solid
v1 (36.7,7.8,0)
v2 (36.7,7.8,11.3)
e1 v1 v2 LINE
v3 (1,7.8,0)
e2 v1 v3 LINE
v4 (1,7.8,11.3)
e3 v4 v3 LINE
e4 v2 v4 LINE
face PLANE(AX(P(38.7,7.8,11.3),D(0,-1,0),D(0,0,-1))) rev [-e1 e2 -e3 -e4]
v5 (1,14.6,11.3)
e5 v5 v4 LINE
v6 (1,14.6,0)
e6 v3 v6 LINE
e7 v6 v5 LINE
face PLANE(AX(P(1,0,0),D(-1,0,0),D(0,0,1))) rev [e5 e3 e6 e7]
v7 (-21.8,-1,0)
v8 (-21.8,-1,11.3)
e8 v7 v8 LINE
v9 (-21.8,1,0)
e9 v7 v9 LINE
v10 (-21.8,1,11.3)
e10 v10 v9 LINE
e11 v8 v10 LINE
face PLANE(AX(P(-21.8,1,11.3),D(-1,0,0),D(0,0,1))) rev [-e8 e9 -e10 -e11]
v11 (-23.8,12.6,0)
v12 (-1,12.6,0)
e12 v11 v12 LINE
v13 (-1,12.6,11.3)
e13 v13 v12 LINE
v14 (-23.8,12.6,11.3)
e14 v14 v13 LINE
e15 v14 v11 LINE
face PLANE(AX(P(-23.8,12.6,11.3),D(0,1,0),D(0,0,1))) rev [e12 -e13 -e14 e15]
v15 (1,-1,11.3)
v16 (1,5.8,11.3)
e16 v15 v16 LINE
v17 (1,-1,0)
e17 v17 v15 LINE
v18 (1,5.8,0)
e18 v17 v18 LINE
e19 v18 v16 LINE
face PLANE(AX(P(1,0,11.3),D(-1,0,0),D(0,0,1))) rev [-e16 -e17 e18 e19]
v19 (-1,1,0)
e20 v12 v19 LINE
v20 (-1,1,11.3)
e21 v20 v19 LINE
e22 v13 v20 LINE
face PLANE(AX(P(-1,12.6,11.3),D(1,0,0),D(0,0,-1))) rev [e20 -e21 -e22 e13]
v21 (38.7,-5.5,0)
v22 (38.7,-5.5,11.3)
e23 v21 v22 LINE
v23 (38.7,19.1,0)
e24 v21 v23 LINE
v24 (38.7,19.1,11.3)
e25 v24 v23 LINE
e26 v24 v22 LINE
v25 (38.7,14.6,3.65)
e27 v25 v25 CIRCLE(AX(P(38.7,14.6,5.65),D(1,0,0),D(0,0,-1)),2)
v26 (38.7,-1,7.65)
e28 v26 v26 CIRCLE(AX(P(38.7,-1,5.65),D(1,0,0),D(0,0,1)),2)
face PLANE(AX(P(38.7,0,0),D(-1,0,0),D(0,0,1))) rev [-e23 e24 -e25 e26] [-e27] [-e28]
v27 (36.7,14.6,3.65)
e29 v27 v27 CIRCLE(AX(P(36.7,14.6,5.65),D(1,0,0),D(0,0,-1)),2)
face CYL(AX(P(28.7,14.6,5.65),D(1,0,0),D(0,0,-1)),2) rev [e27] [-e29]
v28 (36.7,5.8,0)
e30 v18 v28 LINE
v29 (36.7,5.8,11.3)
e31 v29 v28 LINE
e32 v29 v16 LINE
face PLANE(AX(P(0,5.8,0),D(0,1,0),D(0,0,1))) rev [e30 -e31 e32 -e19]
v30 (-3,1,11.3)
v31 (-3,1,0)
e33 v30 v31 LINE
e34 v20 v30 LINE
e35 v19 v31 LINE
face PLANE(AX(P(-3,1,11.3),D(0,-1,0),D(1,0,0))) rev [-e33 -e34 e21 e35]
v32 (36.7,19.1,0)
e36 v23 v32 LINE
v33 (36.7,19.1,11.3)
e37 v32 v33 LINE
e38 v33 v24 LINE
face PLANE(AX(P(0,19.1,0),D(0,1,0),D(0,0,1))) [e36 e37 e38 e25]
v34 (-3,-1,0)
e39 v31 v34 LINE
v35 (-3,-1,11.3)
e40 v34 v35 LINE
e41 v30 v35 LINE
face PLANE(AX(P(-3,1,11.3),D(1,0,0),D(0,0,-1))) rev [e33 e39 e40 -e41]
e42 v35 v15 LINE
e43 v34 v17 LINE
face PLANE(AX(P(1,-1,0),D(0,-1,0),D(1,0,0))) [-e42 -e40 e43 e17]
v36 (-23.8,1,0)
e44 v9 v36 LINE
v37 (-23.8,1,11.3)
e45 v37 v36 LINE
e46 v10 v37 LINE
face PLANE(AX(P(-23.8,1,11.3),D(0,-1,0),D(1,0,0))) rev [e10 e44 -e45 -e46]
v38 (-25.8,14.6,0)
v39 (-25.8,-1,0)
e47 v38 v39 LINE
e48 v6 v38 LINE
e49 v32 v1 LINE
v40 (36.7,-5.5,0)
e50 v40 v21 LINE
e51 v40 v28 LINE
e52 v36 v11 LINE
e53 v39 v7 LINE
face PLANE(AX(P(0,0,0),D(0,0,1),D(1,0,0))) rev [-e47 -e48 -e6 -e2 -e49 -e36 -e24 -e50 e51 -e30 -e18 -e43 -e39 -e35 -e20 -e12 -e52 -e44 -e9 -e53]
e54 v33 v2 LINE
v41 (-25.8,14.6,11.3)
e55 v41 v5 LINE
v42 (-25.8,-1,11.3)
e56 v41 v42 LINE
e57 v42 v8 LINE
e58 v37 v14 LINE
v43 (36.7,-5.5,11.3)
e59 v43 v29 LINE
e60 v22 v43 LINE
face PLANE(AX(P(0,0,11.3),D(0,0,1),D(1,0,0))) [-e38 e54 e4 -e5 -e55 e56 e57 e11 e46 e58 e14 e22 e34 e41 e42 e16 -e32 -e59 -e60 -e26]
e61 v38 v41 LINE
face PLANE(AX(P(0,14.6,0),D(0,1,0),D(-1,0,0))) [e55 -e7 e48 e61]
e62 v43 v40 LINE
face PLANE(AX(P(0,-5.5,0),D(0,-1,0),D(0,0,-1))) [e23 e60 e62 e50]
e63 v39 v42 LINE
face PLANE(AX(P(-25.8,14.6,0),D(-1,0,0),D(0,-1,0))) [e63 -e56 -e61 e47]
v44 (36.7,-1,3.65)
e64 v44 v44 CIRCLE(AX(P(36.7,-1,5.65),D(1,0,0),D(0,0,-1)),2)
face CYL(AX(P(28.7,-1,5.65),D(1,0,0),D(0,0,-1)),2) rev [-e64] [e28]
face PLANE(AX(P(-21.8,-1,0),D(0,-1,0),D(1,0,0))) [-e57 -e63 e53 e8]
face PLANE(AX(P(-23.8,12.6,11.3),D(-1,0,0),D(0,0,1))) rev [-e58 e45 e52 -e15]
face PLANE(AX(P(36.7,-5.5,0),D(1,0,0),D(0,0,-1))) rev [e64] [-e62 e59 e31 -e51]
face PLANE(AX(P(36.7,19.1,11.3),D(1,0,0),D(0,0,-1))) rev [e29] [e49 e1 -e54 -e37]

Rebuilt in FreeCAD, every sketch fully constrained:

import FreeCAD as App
import Part
import Sketcher

V = App.Vector

doc = App.newDocument("Part")
body = doc.addObject("PartDesign::Body", "Body")

sketch1 = body.newObject("Sketcher::SketchObject", "Sketch")
sketch1.AttachmentSupport = (doc.getObject("XY_Plane"), [""])
sketch1.MapMode = "FlatFace"
sketch1.addGeometry([
    Part.LineSegment(V(-21.8, 0, 0), V(-21.8, 1, 0)),
    Part.LineSegment(V(-21.8, 1, 0), V(-23.8, 1, 0)),
    Part.LineSegment(V(-23.8, 1, 0), V(-23.8, 12.6, 0)),
    Part.LineSegment(V(-23.8, 12.6, 0), V(-1, 12.6, 0)),
    Part.LineSegment(V(-1, 12.6, 0), V(-1, 1, 0)),
    Part.LineSegment(V(-1, 1, 0), V(-3, 1, 0)),
    Part.LineSegment(V(-3, 1, 0), V(-3, 0, 0)),
    Part.LineSegment(V(-3, 0, 0), V(0, 0, 0)),
    Part.LineSegment(V(0, 0, 0), V(0, 13.6, 0)),
    Part.LineSegment(V(0, 13.6, 0), V(-24.8, 13.6, 0)),
    Part.LineSegment(V(-24.8, 13.6, 0), V(-24.8, 0, 0)),
    Part.LineSegment(V(-24.8, 0, 0), V(-21.8, 0, 0)),
], False)
sketch1.addConstraint([
    Sketcher.Constraint("Coincident", 0, 2, 1, 1),
    Sketcher.Constraint("Coincident", 1, 2, 2, 1),
    Sketcher.Constraint("Coincident", 2, 2, 3, 1),
    Sketcher.Constraint("Coincident", 3, 2, 4, 1),
    Sketcher.Constraint("Coincident", 4, 2, 5, 1),
    Sketcher.Constraint("Coincident", 5, 2, 6, 1),
    Sketcher.Constraint("Coincident", 6, 2, 7, 1),
    Sketcher.Constraint("Coincident", 7, 2, 8, 1),
    Sketcher.Constraint("Coincident", 8, 2, 9, 1),
    Sketcher.Constraint("Coincident", 9, 2, 10, 1),
    Sketcher.Constraint("Coincident", 10, 2, 11, 1),
    Sketcher.Constraint("Coincident", 11, 2, 0, 1),
    Sketcher.Constraint("Vertical", 0),
    Sketcher.Constraint("Horizontal", 1),
    Sketcher.Constraint("Vertical", 2),
    Sketcher.Constraint("Horizontal", 3),
    Sketcher.Constraint("Vertical", 4),
    Sketcher.Constraint("Horizontal", 5),
    Sketcher.Constraint("Vertical", 6),
    Sketcher.Constraint("Horizontal", 7),
    Sketcher.Constraint("Vertical", 8),
    Sketcher.Constraint("Horizontal", 9),
    Sketcher.Constraint("Vertical", 10),
    Sketcher.Constraint("Horizontal", 11),
    Sketcher.Constraint("Coincident", 7, 2, -1, 1),
    Sketcher.Constraint("PointOnObject", 10, 2, -1),
    Sketcher.Constraint("Horizontal", 1, 2, 4, 2),
    Sketcher.Constraint("Equal", 1, 5),
    Sketcher.Constraint("Equal", 7, 11),
    Sketcher.Constraint("DistanceX", 1, 2, 1, 1, 2.0),
    Sketcher.Constraint("DistanceX", 7, 1, 7, 2, 3.0),
    Sketcher.Constraint("DistanceY", 0, 1, 0, 2, 1.0),
    Sketcher.Constraint("DistanceX", 3, 1, 3, 2, 22.8),
    Sketcher.Constraint("DistanceY", 2, 1, 2, 2, 11.6),
    Sketcher.Constraint("DistanceY", 8, 1, 8, 2, 13.6),
])
pad1 = body.newObject("PartDesign::Pad", "Pad")
pad1.Profile = sketch1
pad1.Length = 11.3

sketch2 = body.newObject("Sketcher::SketchObject", "Sketch001")
sketch2.AttachmentSupport = (doc.getObject("XZ_Plane"), [""])
sketch2.MapMode = "FlatFace"
sketch2.AttachmentOffset = App.Placement(V(0, 0, -13.6), App.Rotation())
sketch2.addGeometry([
    Part.LineSegment(V(-17, 0, 0), V(-17, 11, 0)),
    Part.LineSegment(V(-17, 11, 0), V(-8, 11, 0)),
    Part.LineSegment(V(-8, 11, 0), V(-8, 0, 0)),
    Part.LineSegment(V(-8, 0, 0), V(-17, 0, 0)),
], False)
sketch2.addConstraint([
    Sketcher.Constraint("Coincident", 0, 2, 1, 1),
    Sketcher.Constraint("Coincident", 1, 2, 2, 1),
    Sketcher.Constraint("Coincident", 2, 2, 3, 1),
    Sketcher.Constraint("Coincident", 3, 2, 0, 1),
    Sketcher.Constraint("Vertical", 0),
    Sketcher.Constraint("Horizontal", 1),
    Sketcher.Constraint("Vertical", 2),
    Sketcher.Constraint("Horizontal", 3),
    Sketcher.Constraint("PointOnObject", 2, 2, -1),
    Sketcher.Constraint("DistanceX", 1, 1, 1, 2, 8.8),
    Sketcher.Constraint("DistanceY", 0, 1, 0, 2, 11.3),
    Sketcher.Constraint("DistanceX", 1, 2, -1, 1, 8.0),
])
pad2 = body.newObject("PartDesign::Pad", "Pad001")
pad2.Profile = sketch2
pad2.Length = 1
pad2.Reversed = True

sketch3 = body.newObject("Sketcher::SketchObject", "Sketch002")
sketch3.AttachmentSupport = (doc.getObject("YZ_Plane"), [""])
sketch3.MapMode = "FlatFace"
sketch3.AttachmentOffset = App.Placement(V(0, 0, -8), App.Rotation())
sketch3.addGeometry([
    Part.LineSegment(V(14.6, 11.3, 0), V(13.6, 11.3, 0)),
    Part.LineSegment(V(13.6, 11.3, 0), V(13.6, 0, 0)),
    Part.LineSegment(V(13.6, 0, 0), V(14.6, 0, 0)),
    Part.LineSegment(V(14.6, 0, 0), V(14.6, 11.3, 0)),
], False)
sketch3.addConstraint([
    Sketcher.Constraint("Coincident", 0, 2, 1, 1),
    Sketcher.Constraint("Coincident", 1, 2, 2, 1),
    Sketcher.Constraint("Coincident", 2, 2, 3, 1),
    Sketcher.Constraint("Coincident", 3, 2, 0, 1),
    Sketcher.Constraint("Horizontal", 0),
    Sketcher.Constraint("Vertical", 1),
    Sketcher.Constraint("Horizontal", 2),
    Sketcher.Constraint("Vertical", 3),
    Sketcher.Constraint("PointOnObject", 1, 2, -1),
    Sketcher.Constraint("DistanceX", 0, 2, 0, 1, 1.0),
    Sketcher.Constraint("DistanceY", 1, 2, 1, 1, 11.3),
    Sketcher.Constraint("DistanceX", -1, 1, 0, 2, 13.6),
])
pad3 = body.newObject("PartDesign::Pad", "Pad002")
pad3.Profile = sketch3
pad3.Length = 10

sketch4 = body.newObject("Sketcher::SketchObject", "Sketch003")
sketch4.AttachmentSupport = (doc.getObject("XZ_Plane"), [""])
sketch4.MapMode = "FlatFace"
sketch4.AttachmentOffset = App.Placement(V(0, 0, -13.6), App.Rotation())
sketch4.addGeometry([
    Part.LineSegment(V(0, 11.3, 0), V(0, 0, 0)),
    Part.LineSegment(V(0, 0, 0), V(2, 0, 0)),
    Part.LineSegment(V(2, 0, 0), V(2, 11.3, 0)),
    Part.LineSegment(V(2, 11.3, 0), V(0, 11.3, 0)),
], False)
sketch4.addConstraint([
    Sketcher.Constraint("Coincident", 0, 2, 1, 1),
    Sketcher.Constraint("Coincident", 1, 2, 2, 1),
    Sketcher.Constraint("Coincident", 2, 2, 3, 1),
    Sketcher.Constraint("Coincident", 3, 2, 0, 1),
    Sketcher.Constraint("Vertical", 0),
    Sketcher.Constraint("Horizontal", 1),
    Sketcher.Constraint("Vertical", 2),
    Sketcher.Constraint("Horizontal", 3),
    Sketcher.Constraint("Coincident", 0, 2, -1, 1),
    Sketcher.Constraint("DistanceX", 1, 1, 1, 2, 2.0),
    Sketcher.Constraint("DistanceY", 0, 2, 0, 1, 11.3),
])
pad4 = body.newObject("PartDesign::Pad", "Pad003")
pad4.Profile = sketch4
pad4.Length = 7.8

sketch5 = body.newObject("Sketcher::SketchObject", "Sketch004")
sketch5.AttachmentSupport = (doc.getObject("YZ_Plane"), [""])
sketch5.MapMode = "FlatFace"
sketch5.AttachmentOffset = App.Placement(V(0, 0, 2), App.Rotation())
sketch5.addGeometry([
    Part.LineSegment(V(7.8, 11.3, 0), V(5.8, 11.3, 0)),
    Part.LineSegment(V(5.8, 11.3, 0), V(5.8, 0, 0)),
    Part.LineSegment(V(5.8, 0, 0), V(7.8, 0, 0)),
    Part.LineSegment(V(7.8, 0, 0), V(7.8, 11.3, 0)),
], False)
sketch5.addConstraint([
    Sketcher.Constraint("Coincident", 0, 2, 1, 1),
    Sketcher.Constraint("Coincident", 1, 2, 2, 1),
    Sketcher.Constraint("Coincident", 2, 2, 3, 1),
    Sketcher.Constraint("Coincident", 3, 2, 0, 1),
    Sketcher.Constraint("Horizontal", 0),
    Sketcher.Constraint("Vertical", 1),
    Sketcher.Constraint("Horizontal", 2),
    Sketcher.Constraint("Vertical", 3),
    Sketcher.Constraint("PointOnObject", 1, 2, -1),
    Sketcher.Constraint("DistanceX", 0, 2, 0, 1, 2.0),
    Sketcher.Constraint("DistanceY", 1, 2, 1, 1, 11.3),
    Sketcher.Constraint("DistanceX", -1, 1, 0, 2, 5.8),
])
pad5 = body.newObject("PartDesign::Pad", "Pad004")
pad5.Profile = sketch5
pad5.Length = 36.7

sketch6 = body.newObject("Sketcher::SketchObject", "Sketch005")
sketch6.AttachmentSupport = (doc.getObject("XZ_Plane"), [""])
sketch6.MapMode = "FlatFace"
sketch6.AttachmentOffset = App.Placement(V(0, 0, -5.8), App.Rotation())
sketch6.addGeometry([
    Part.LineSegment(V(36.7, 11.3, 0), V(36.7, 0, 0)),
    Part.LineSegment(V(36.7, 0, 0), V(38.7, 0, 0)),
    Part.LineSegment(V(38.7, 0, 0), V(38.7, 11.3, 0)),
    Part.LineSegment(V(38.7, 11.3, 0), V(36.7, 11.3, 0)),
], False)
sketch6.addConstraint([
    Sketcher.Constraint("Coincident", 0, 2, 1, 1),
    Sketcher.Constraint("Coincident", 1, 2, 2, 1),
    Sketcher.Constraint("Coincident", 2, 2, 3, 1),
    Sketcher.Constraint("Coincident", 3, 2, 0, 1),
    Sketcher.Constraint("Vertical", 0),
    Sketcher.Constraint("Horizontal", 1),
    Sketcher.Constraint("Vertical", 2),
    Sketcher.Constraint("Horizontal", 3),
    Sketcher.Constraint("PointOnObject", 0, 2, -1),
    Sketcher.Constraint("DistanceX", 1, 1, 1, 2, 2.0),
    Sketcher.Constraint("DistanceY", 0, 2, 0, 1, 11.3),
    Sketcher.Constraint("DistanceX", -1, 1, 0, 2, 36.7),
])
pad6 = body.newObject("PartDesign::Pad", "Pad005")
pad6.Profile = sketch6
pad6.Length = 11.3

sketch7 = body.newObject("Sketcher::SketchObject", "Sketch006")
sketch7.AttachmentSupport = (doc.getObject("XZ_Plane"), [""])
sketch7.MapMode = "FlatFace"
sketch7.AttachmentOffset = App.Placement(V(0, 0, -7.8), App.Rotation())
sketch7.addGeometry([
    Part.LineSegment(V(36.7, 0, 0), V(36.7, 11.3, 0)),
    Part.LineSegment(V(36.7, 11.3, 0), V(38.7, 11.3, 0)),
    Part.LineSegment(V(38.7, 11.3, 0), V(38.7, 0, 0)),
    Part.LineSegment(V(38.7, 0, 0), V(36.7, 0, 0)),
], False)
sketch7.addConstraint([
    Sketcher.Constraint("Coincident", 0, 2, 1, 1),
    Sketcher.Constraint("Coincident", 1, 2, 2, 1),
    Sketcher.Constraint("Coincident", 2, 2, 3, 1),
    Sketcher.Constraint("Coincident", 3, 2, 0, 1),
    Sketcher.Constraint("Vertical", 0),
    Sketcher.Constraint("Horizontal", 1),
    Sketcher.Constraint("Vertical", 2),
    Sketcher.Constraint("Horizontal", 3),
    Sketcher.Constraint("PointOnObject", 2, 2, -1),
    Sketcher.Constraint("DistanceX", 1, 1, 1, 2, 2.0),
    Sketcher.Constraint("DistanceY", 0, 1, 0, 2, 11.3),
    Sketcher.Constraint("DistanceX", -1, 1, 0, 2, 36.7),
])
pad7 = body.newObject("PartDesign::Pad", "Pad006")
pad7.Profile = sketch7
pad7.Length = 11.3
pad7.Reversed = True

sketch8 = body.newObject("Sketcher::SketchObject", "Sketch007")
sketch8.AttachmentSupport = (doc.getObject("XY_Plane"), [""])
sketch8.MapMode = "FlatFace"
sketch8.AttachmentOffset = App.Placement(V(0, 0, 11.3), App.Rotation())
sketch8.addGeometry([
    Part.LineSegment(V(-16.8, 14.6, 0), V(-25.8, 14.6, 0)),
    Part.LineSegment(V(-25.8, 14.6, 0), V(-25.8, 0, 0)),
    Part.LineSegment(V(-25.8, 0, 0), V(-24.8, 0, 0)),
    Part.LineSegment(V(-24.8, 0, 0), V(-24.8, 13.6, 0)),
    Part.LineSegment(V(-24.8, 13.6, 0), V(-16.8, 13.6, 0)),
    Part.LineSegment(V(-16.8, 13.6, 0), V(-16.8, 14.6, 0)),
], False)
sketch8.addConstraint([
    Sketcher.Constraint("Coincident", 0, 2, 1, 1),
    Sketcher.Constraint("Coincident", 1, 2, 2, 1),
    Sketcher.Constraint("Coincident", 2, 2, 3, 1),
    Sketcher.Constraint("Coincident", 3, 2, 4, 1),
    Sketcher.Constraint("Coincident", 4, 2, 5, 1),
    Sketcher.Constraint("Coincident", 5, 2, 0, 1),
    Sketcher.Constraint("Horizontal", 0),
    Sketcher.Constraint("Vertical", 1),
    Sketcher.Constraint("Horizontal", 2),
    Sketcher.Constraint("Vertical", 3),
    Sketcher.Constraint("Horizontal", 4),
    Sketcher.Constraint("Vertical", 5),
    Sketcher.Constraint("PointOnObject", 1, 2, -1),
    Sketcher.Constraint("Equal", 2, 5),
    Sketcher.Constraint("DistanceX", 0, 2, 0, 1, 9.0),
    Sketcher.Constraint("DistanceX", 2, 1, 2, 2, 1.0),
    Sketcher.Constraint("DistanceY", 1, 2, 1, 1, 14.6),
    Sketcher.Constraint("DistanceX", 0, 2, -1, 1, 25.8),
])
pad8 = body.newObject("PartDesign::Pad", "Pad007")
pad8.Profile = sketch8
pad8.Length = 11.3
pad8.Reversed = True

sketch9 = body.newObject("Sketcher::SketchObject", "Sketch008")
sketch9.AttachmentSupport = (doc.getObject("XZ_Plane"), [""])
sketch9.MapMode = "FlatFace"
sketch9.AttachmentOffset = App.Placement(V(0, 0, -5.8), App.Rotation())
sketch9.addGeometry([
    Part.LineSegment(V(0, 11.3, 0), V(0, 0, 0)),
    Part.LineSegment(V(0, 0, 0), V(1, 0, 0)),
    Part.LineSegment(V(1, 0, 0), V(1, 11.3, 0)),
    Part.LineSegment(V(1, 11.3, 0), V(0, 11.3, 0)),
], False)
sketch9.addConstraint([
    Sketcher.Constraint("Coincident", 0, 2, 1, 1),
    Sketcher.Constraint("Coincident", 1, 2, 2, 1),
    Sketcher.Constraint("Coincident", 2, 2, 3, 1),
    Sketcher.Constraint("Coincident", 3, 2, 0, 1),
    Sketcher.Constraint("Vertical", 0),
    Sketcher.Constraint("Horizontal", 1),
    Sketcher.Constraint("Vertical", 2),
    Sketcher.Constraint("Horizontal", 3),
    Sketcher.Constraint("Coincident", 0, 2, -1, 1),
    Sketcher.Constraint("DistanceX", 1, 1, 1, 2, 1.0),
    Sketcher.Constraint("DistanceY", 0, 2, 0, 1, 11.3),
])
pad9 = body.newObject("PartDesign::Pad", "Pad008")
pad9.Profile = sketch9
pad9.Length = 5.8

sketch10 = body.newObject("Sketcher::SketchObject", "Sketch009")
sketch10.AttachmentSupport = (doc.getObject("YZ_Plane"), [""])
sketch10.MapMode = "FlatFace"
sketch10.AttachmentOffset = App.Placement(V(0, 0, 2), App.Rotation())
sketch10.addGeometry([
    Part.LineSegment(V(15, 11, 0), V(8, 11, 0)),
    Part.LineSegment(V(8, 11, 0), V(8, 0, 0)),
    Part.LineSegment(V(8, 0, 0), V(15, 0, 0)),
    Part.LineSegment(V(15, 0, 0), V(15, 11, 0)),
], False)
sketch10.addConstraint([
    Sketcher.Constraint("Coincident", 0, 2, 1, 1),
    Sketcher.Constraint("Coincident", 1, 2, 2, 1),
    Sketcher.Constraint("Coincident", 2, 2, 3, 1),
    Sketcher.Constraint("Coincident", 3, 2, 0, 1),
    Sketcher.Constraint("Horizontal", 0),
    Sketcher.Constraint("Vertical", 1),
    Sketcher.Constraint("Horizontal", 2),
    Sketcher.Constraint("Vertical", 3),
    Sketcher.Constraint("PointOnObject", 1, 2, -1),
    Sketcher.Constraint("DistanceX", 0, 2, 0, 1, 6.8),
    Sketcher.Constraint("DistanceY", 1, 2, 1, 1, 11.3),
    Sketcher.Constraint("DistanceX", -1, 1, 0, 2, 7.8),
])
pocket1 = body.newObject("PartDesign::Pocket", "Pocket")
pocket1.Profile = sketch10
pocket1.Length = 1

sketch11 = body.newObject("Sketcher::SketchObject", "Sketch010")
sketch11.AttachmentSupport = (doc.getObject("YZ_Plane"), [""])
sketch11.MapMode = "FlatFace"
sketch11.AttachmentOffset = App.Placement(V(0, 0, 38.7), App.Rotation())
sketch11.addGeometry([
    Part.Circle(V(14.6, 5.7, 0), V(0, 0, 1), 2),
    Part.Circle(V(-1, 5.7, 0), V(0, 0, 1), 2),
], False)
sketch11.addConstraint([
    Sketcher.Constraint("Equal", 0, 1),
    Sketcher.Constraint("Horizontal", 0, 3, 1, 3),
    Sketcher.Constraint("Diameter", 0, 4.0),
    Sketcher.Constraint("DistanceX", 1, 3, -1, 1, 1.0),
    Sketcher.Constraint("DistanceX", -1, 1, 0, 3, 14.6),
    Sketcher.Constraint("DistanceY", -1, 1, 0, 3, 5.65),
])
pocket2 = body.newObject("PartDesign::Pocket", "Pocket001")
pocket2.Profile = sketch11
pocket2.Length = 10

sketch12 = body.newObject("Sketcher::SketchObject", "Sketch011")
sketch12.AttachmentSupport = (doc.getObject("XY_Plane"), [""])
sketch12.MapMode = "FlatFace"
sketch12.AttachmentOffset = App.Placement(V(0, 0, 11.3), App.Rotation())
sketch12.addGeometry([
    Part.LineSegment(V(-25.8, 0, 0), V(-25.8, -1, 0)),
    Part.LineSegment(V(-25.8, -1, 0), V(-21.8, -1, 0)),
    Part.LineSegment(V(-21.8, -1, 0), V(-21.8, 0, 0)),
    Part.LineSegment(V(-21.8, 0, 0), V(-25.8, 0, 0)),
    Part.LineSegment(V(-3, 0, 0), V(-3, -1, 0)),
    Part.LineSegment(V(-3, -1, 0), V(1, -1, 0)),
    Part.LineSegment(V(1, -1, 0), V(1, 0, 0)),
    Part.LineSegment(V(1, 0, 0), V(-3, 0, 0)),
], False)
sketch12.addConstraint([
    Sketcher.Constraint("Coincident", 0, 2, 1, 1),
    Sketcher.Constraint("Coincident", 1, 2, 2, 1),
    Sketcher.Constraint("Coincident", 2, 2, 3, 1),
    Sketcher.Constraint("Coincident", 3, 2, 0, 1),
    Sketcher.Constraint("Coincident", 4, 2, 5, 1),
    Sketcher.Constraint("Coincident", 5, 2, 6, 1),
    Sketcher.Constraint("Coincident", 6, 2, 7, 1),
    Sketcher.Constraint("Coincident", 7, 2, 4, 1),
    Sketcher.Constraint("Vertical", 0),
    Sketcher.Constraint("Horizontal", 1),
    Sketcher.Constraint("Vertical", 2),
    Sketcher.Constraint("Horizontal", 3),
    Sketcher.Constraint("Vertical", 4),
    Sketcher.Constraint("Horizontal", 5),
    Sketcher.Constraint("Vertical", 6),
    Sketcher.Constraint("Horizontal", 7),
    Sketcher.Constraint("PointOnObject", 2, 2, -1),
    Sketcher.Constraint("PointOnObject", 6, 2, -1),
    Sketcher.Constraint("Horizontal", 1, 2, 4, 2),
    Sketcher.Constraint("Equal", 3, 5),
    Sketcher.Constraint("DistanceX", 1, 1, 1, 2, 4.0),
    Sketcher.Constraint("DistanceY", 0, 2, 0, 1, 1.0),
    Sketcher.Constraint("DistanceX", 4, 2, -1, 1, 3.0),
    Sketcher.Constraint("DistanceX", 0, 2, -1, 1, 25.8),
])
pad10 = body.newObject("PartDesign::Pad", "Pad009")
pad10.Profile = sketch12
pad10.Length = 11.3
pad10.Reversed = True

doc.recompute()
